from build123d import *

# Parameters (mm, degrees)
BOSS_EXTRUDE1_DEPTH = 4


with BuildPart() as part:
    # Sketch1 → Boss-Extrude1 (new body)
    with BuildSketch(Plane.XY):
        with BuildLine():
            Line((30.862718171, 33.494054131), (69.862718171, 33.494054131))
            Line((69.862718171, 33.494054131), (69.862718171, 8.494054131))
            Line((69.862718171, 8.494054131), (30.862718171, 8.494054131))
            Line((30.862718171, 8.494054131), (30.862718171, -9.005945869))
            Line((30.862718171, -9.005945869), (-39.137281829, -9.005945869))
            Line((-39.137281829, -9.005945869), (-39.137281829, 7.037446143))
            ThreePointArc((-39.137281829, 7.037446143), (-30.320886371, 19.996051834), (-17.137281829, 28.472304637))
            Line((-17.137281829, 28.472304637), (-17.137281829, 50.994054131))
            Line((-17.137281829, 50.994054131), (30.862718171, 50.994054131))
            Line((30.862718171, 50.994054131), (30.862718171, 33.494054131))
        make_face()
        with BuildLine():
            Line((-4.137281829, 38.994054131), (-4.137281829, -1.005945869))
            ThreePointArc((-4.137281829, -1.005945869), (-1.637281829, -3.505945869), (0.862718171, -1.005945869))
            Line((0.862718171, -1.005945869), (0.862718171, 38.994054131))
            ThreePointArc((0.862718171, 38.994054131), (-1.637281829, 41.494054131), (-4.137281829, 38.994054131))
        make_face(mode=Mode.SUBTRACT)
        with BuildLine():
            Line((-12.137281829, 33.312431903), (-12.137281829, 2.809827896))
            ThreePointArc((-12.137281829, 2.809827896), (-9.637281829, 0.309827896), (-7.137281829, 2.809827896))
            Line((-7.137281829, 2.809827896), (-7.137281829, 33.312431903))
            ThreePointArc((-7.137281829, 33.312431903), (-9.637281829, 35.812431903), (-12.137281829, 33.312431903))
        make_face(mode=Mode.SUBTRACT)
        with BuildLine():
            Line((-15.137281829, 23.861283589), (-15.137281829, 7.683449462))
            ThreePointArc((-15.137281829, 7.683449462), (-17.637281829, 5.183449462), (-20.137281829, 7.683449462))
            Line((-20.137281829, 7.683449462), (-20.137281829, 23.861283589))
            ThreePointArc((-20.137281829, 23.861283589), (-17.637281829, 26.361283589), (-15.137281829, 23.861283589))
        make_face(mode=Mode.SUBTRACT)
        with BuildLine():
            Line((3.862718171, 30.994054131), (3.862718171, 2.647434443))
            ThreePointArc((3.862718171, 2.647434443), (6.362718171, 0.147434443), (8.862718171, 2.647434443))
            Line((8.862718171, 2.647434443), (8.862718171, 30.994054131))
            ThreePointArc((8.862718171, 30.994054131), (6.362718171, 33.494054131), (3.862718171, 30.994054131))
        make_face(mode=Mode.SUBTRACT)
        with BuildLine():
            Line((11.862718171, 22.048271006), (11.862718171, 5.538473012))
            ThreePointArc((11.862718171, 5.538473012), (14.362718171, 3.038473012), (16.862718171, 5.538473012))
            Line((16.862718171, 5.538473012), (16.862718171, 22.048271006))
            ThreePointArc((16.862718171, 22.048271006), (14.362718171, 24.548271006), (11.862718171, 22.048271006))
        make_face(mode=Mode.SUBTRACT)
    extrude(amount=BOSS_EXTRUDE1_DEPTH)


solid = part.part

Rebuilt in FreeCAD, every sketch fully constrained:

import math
import FreeCAD as App
import Part
import Sketcher
from FreeCAD import Vector

doc = App.newDocument("Part")
body = doc.addObject("PartDesign::Body", "Body")

sketch1 = body.newObject("Sketcher::SketchObject", "Sketch")
sketch1.AttachmentSupport = (doc.getObject("XY_Plane"), [""])
sketch1.MapMode = "FlatFace"
sketch1.addGeometry(Part.LineSegment(Vector(69.9, 33.5, 0), Vector(30.9, 33.5, 0)), False)
sketch1.addGeometry(Part.LineSegment(Vector(30.9, 33.5, 0), Vector(30.9, 51, 0)), False)
sketch1.addGeometry(Part.LineSegment(Vector(30.9, 51, 0), Vector(-17.1, 51, 0)), False)
sketch1.addGeometry(Part.LineSegment(Vector(-17.1, 51, 0), Vector(-17.1, 28.5, 0)), False)
sketch1.addGeometry(Part.ArcOfCircle(Part.Circle(Vector(-2.9, -8.1, 0), Vector(0, 0, 1), 39.3), math.radians(111), math.radians(157)), False)
sketch1.addGeometry(Part.LineSegment(Vector(-39.1, 7, 0), Vector(-39.1, -9, 0)), False)
sketch1.addGeometry(Part.LineSegment(Vector(-39.1, -9, 0), Vector(30.9, -9, 0)), False)
sketch1.addGeometry(Part.LineSegment(Vector(30.9, -9, 0), Vector(30.9, 8.5, 0)), False)
sketch1.addGeometry(Part.LineSegment(Vector(30.9, 8.5, 0), Vector(69.9, 8.5, 0)), False)
sketch1.addGeometry(Part.LineSegment(Vector(69.9, 8.5, 0), Vector(69.9, 33.5, 0)), False)
sketch1.addGeometry(Part.ArcOfCircle(Part.Circle(Vector(14.4, 22, 0), Vector(0, 0, 1), 2.5), math.radians(0), math.radians(180)), False)
sketch1.addGeometry(Part.LineSegment(Vector(16.9, 22, 0), Vector(16.9, 5.5, 0)), False)
sketch1.addGeometry(Part.ArcOfCircle(Part.Circle(Vector(14.4, 5.5, 0), Vector(0, 0, 1), 2.5), math.radians(180), math.radians(360)), False)
sketch1.addGeometry(Part.LineSegment(Vector(11.9, 5.5, 0), Vector(11.9, 22, 0)), False)
sketch1.addGeometry(Part.ArcOfCircle(Part.Circle(Vector(6.4, 31, 0), Vector(0, 0, 1), 2.5), math.radians(0), math.radians(180)), False)
sketch1.addGeometry(Part.LineSegment(Vector(8.9, 31, 0), Vector(8.9, 2.6, 0)), False)
sketch1.addGeometry(Part.ArcOfCircle(Part.Circle(Vector(6.4, 2.6, 0), Vector(0, 0, 1), 2.5), math.radians(180), math.radians(360)), False)
sketch1.addGeometry(Part.LineSegment(Vector(3.9, 2.6, 0), Vector(3.9, 31, 0)), False)
sketch1.addGeometry(Part.ArcOfCircle(Part.Circle(Vector(-9.6, 33.3, 0), Vector(0, 0, 1), 2.5), math.radians(0), math.radians(180)), False)
sketch1.addGeometry(Part.LineSegment(Vector(-7.1, 33.3, 0), Vector(-7.1, 2.8, 0)), False)
sketch1.addGeometry(Part.ArcOfCircle(Part.Circle(Vector(-9.6, 2.8, 0), Vector(0, 0, 1), 2.5), math.radians(180), math.radians(360)), False)
sketch1.addGeometry(Part.LineSegment(Vector(-12.1, 2.8, 0), Vector(-12.1, 33.3, 0)), False)
sketch1.addGeometry(Part.LineSegment(Vector(-15.1, 23.9, 0), Vector(-15.1, 7.7, 0)), False)
sketch1.addGeometry(Part.ArcOfCircle(Part.Circle(Vector(-17.6, 7.7, 0), Vector(0, 0, 1), 2.5), math.radians(180), math.radians(360)), False)
sketch1.addGeometry(Part.LineSegment(Vector(-20.1, 7.7, 0), Vector(-20.1, 23.9, 0)), False)
sketch1.addGeometry(Part.ArcOfCircle(Part.Circle(Vector(-17.6, 23.9, 0), Vector(0, 0, 1), 2.5), math.radians(0), math.radians(180)), False)
sketch1.addGeometry(Part.ArcOfCircle(Part.Circle(Vector(-1.6, 39, 0), Vector(0, 0, 1), 2.5), math.radians(0), math.radians(180)), False)
sketch1.addGeometry(Part.LineSegment(Vector(0.9, 39, 0), Vector(0.9, -1, 0)), False)
sketch1.addGeometry(Part.ArcOfCircle(Part.Circle(Vector(-1.6, -1, 0), Vector(0, 0, 1), 2.5), math.radians(180), math.radians(360)), False)
sketch1.addGeometry(Part.LineSegment(Vector(-4.1, -1, 0), Vector(-4.1, 39, 0)), False)
sketch1.addConstraint(Sketcher.Constraint("Coincident", 0, 2, 1, 1))
sketch1.addConstraint(Sketcher.Constraint("Coincident", 1, 2, 2, 1))
sketch1.addConstraint(Sketcher.Constraint("Coincident", 2, 2, 3, 1))
sketch1.addConstraint(Sketcher.Constraint("Coincident", 3, 2, 4, 1))
sketch1.addConstraint(Sketcher.Constraint("Coincident", 4, 2, 5, 1))
sketch1.addConstraint(Sketcher.Constraint("Coincident", 5, 2, 6, 1))
sketch1.addConstraint(Sketcher.Constraint("Coincident", 6, 2, 7, 1))
sketch1.addConstraint(Sketcher.Constraint("Coincident", 7, 2, 8, 1))
sketch1.addConstraint(Sketcher.Constraint("Coincident", 8, 2, 9, 1))
sketch1.addConstraint(Sketcher.Constraint("Coincident", 9, 2, 0, 1))
sketch1.addConstraint(Sketcher.Constraint("Tangent", 10, 1, 11, 1))
sketch1.addConstraint(Sketcher.Constraint("Tangent", 11, 2, 12, 2))
sketch1.addConstraint(Sketcher.Constraint("Tangent", 12, 1, 13, 1))
sketch1.addConstraint(Sketcher.Constraint("Tangent", 13, 2, 10, 2))
sketch1.addConstraint(Sketcher.Constraint("Tangent", 14, 1, 15, 1))
sketch1.addConstraint(Sketcher.Constraint("Tangent", 15, 2, 16, 2))
sketch1.addConstraint(Sketcher.Constraint("Tangent", 16, 1, 17, 1))
sketch1.addConstraint(Sketcher.Constraint("Tangent", 17, 2, 14, 2))
sketch1.addConstraint(Sketcher.Constraint("Tangent", 18, 1, 19, 1))
sketch1.addConstraint(Sketcher.Constraint("Tangent", 19, 2, 20, 2))
sketch1.addConstraint(Sketcher.Constraint("Tangent", 20, 1, 21, 1))
sketch1.addConstraint(Sketcher.Constraint("Tangent", 21, 2, 18, 2))
sketch1.addConstraint(Sketcher.Constraint("Tangent", 22, 2, 23, 2))
sketch1.addConstraint(Sketcher.Constraint("Tangent", 23, 1, 24, 1))
sketch1.addConstraint(Sketcher.Constraint("Tangent", 24, 2, 25, 2))
sketch1.addConstraint(Sketcher.Constraint("Tangent", 25, 1, 22, 1))
sketch1.addConstraint(Sketcher.Constraint("Tangent", 26, 1, 27, 1))
sketch1.addConstraint(Sketcher.Constraint("Tangent", 27, 2, 28, 2))
sketch1.addConstraint(Sketcher.Constraint("Tangent", 28, 1, 29, 1))
sketch1.addConstraint(Sketcher.Constraint("Tangent", 29, 2, 26, 2))
sketch1.addConstraint(Sketcher.Constraint("Horizontal", 0))
sketch1.addConstraint(Sketcher.Constraint("Vertical", 1))
sketch1.addConstraint(Sketcher.Constraint("Horizontal", 2))
sketch1.addConstraint(Sketcher.Constraint("Vertical", 3))
sketch1.addConstraint(Sketcher.Constraint("Vertical", 5))
sketch1.addConstraint(Sketcher.Constraint("Horizontal", 6))
sketch1.addConstraint(Sketcher.Constraint("Vertical", 7))
sketch1.addConstraint(Sketcher.Constraint("Horizontal", 8))
sketch1.addConstraint(Sketcher.Constraint("Vertical", 9))
sketch1.addConstraint(Sketcher.Constraint("Vertical", 11))
sketch1.addConstraint(Sketcher.Constraint("Vertical", 13))
sketch1.addConstraint(Sketcher.Constraint("Vertical", 15))
sketch1.addConstraint(Sketcher.Constraint("Vertical", 17))
sketch1.addConstraint(Sketcher.Constraint("Vertical", 19))
sketch1.addConstraint(Sketcher.Constraint("Vertical", 21))
sketch1.addConstraint(Sketcher.Constraint("Vertical", 22))
sketch1.addConstraint(Sketcher.Constraint("Vertical", 24))
sketch1.addConstraint(Sketcher.Constraint("Vertical", 27))
sketch1.addConstraint(Sketcher.Constraint("Vertical", 29))
sketch1.addConstraint(Sketcher.Constraint("Equal", 12, 14))
sketch1.addConstraint(Sketcher.Constraint("Equal", 16, 18))
sketch1.addConstraint(Sketcher.Constraint("Equal", 20, 23))
sketch1.addConstraint(Sketcher.Constraint("Equal", 25, 26))
sketch1.addConstraint(Sketcher.Constraint("Vertical", 1, 2, 6, 2))
sketch1.addConstraint(Sketcher.Constraint("Equal", 1, 7))
sketch1.addConstraint(Sketcher.Constraint("Radius", 10, 2.5))
sketch1.addConstraint(Sketcher.Constraint("DistanceX", 0, 2, 0, 1, 39.0))
sketch1.addConstraint(Sketcher.Constraint("DistanceX", 2, 2, 2, 1, 48.0))
sketch1.addConstraint(Sketcher.Constraint("DistanceX", 6, 1, 6, 2, 70.0))
sketch1.addConstraint(Sketcher.Constraint("DistanceY", 9, 1, 9, 2, 25.0))
sketch1.addConstraint(Sketcher.Constraint("DistanceY", 27, 2, 27, 1, 40.0))
sketch1.addConstraint(Sketcher.Constraint("DistanceY", 1, 1, 1, 2, 17.5))
sketch1.addConstraint(Sketcher.Constraint("DistanceX", 14, 3, 10, 3, 8.0))
sketch1.addConstraint(Sketcher.Constraint("DistanceX", 18, 3, 14, 3, 16.0))
sketch1.addConstraint(Sketcher.Constraint("DistanceX", 23, 3, 20, 3, 8.0))
sketch1.addConstraint(Sketcher.Constraint("DistanceX", 18, 3, 26, 3, 8.0))
sketch1.addConstraint(Sketcher.Constraint("DistanceY", 14, 3, 26, 3, 8.0))
sketch1.addConstraint(Sketcher.Constraint("DistanceY", 14, 3, 1, 2, 20.0))
sketch1.addConstraint(Sketcher.Constraint("DistanceX", 10, 1, 0, 2, 14.0))
sketch1.addConstraint(Sketcher.Constraint("Radius", 4, 39.25372))
sketch1.addConstraint(Sketcher.Constraint("DistanceY", 3, 2, 3, 1, 22.521749))
sketch1.addConstraint(Sketcher.Constraint("DistanceY", 15, 2, 15, 1, 28.34662))
sketch1.addConstraint(Sketcher.Constraint("DistanceX", 4, 3, 10, 3, 17.290499))
sketch1.addConstraint(Sketcher.Constraint("DistanceY", 11, 2, 11, 1, 16.509798))
sketch1.addConstraint(Sketcher.Constraint("DistanceY", 19, 2, 19, 1, 30.502604))
sketch1.addConstraint(Sketcher.Constraint("DistanceY", 22, 2, 22, 1, 16.177834))
sketch1.addConstraint(Sketcher.Constraint("DistanceX", 4, 3, -1, 1, 2.927781))
sketch1.addConstraint(Sketcher.Constraint("DistanceY", -1, 1, 10, 3, 22.048271))
sketch1.addConstraint(Sketcher.Constraint("DistanceY", -1, 1, 18, 3, 33.312432))
sketch1.addConstraint(Sketcher.Constraint("DistanceY", -1, 1, 23, 3, 7.683449))
sketch1.addConstraint(Sketcher.Constraint("DistanceY", 4, 3, 10, 3, 30.167558))
pad1 = body.newObject("PartDesign::Pad", "Pad")
pad1.Profile = sketch1
pad1.Length = 4

doc.recompute()
